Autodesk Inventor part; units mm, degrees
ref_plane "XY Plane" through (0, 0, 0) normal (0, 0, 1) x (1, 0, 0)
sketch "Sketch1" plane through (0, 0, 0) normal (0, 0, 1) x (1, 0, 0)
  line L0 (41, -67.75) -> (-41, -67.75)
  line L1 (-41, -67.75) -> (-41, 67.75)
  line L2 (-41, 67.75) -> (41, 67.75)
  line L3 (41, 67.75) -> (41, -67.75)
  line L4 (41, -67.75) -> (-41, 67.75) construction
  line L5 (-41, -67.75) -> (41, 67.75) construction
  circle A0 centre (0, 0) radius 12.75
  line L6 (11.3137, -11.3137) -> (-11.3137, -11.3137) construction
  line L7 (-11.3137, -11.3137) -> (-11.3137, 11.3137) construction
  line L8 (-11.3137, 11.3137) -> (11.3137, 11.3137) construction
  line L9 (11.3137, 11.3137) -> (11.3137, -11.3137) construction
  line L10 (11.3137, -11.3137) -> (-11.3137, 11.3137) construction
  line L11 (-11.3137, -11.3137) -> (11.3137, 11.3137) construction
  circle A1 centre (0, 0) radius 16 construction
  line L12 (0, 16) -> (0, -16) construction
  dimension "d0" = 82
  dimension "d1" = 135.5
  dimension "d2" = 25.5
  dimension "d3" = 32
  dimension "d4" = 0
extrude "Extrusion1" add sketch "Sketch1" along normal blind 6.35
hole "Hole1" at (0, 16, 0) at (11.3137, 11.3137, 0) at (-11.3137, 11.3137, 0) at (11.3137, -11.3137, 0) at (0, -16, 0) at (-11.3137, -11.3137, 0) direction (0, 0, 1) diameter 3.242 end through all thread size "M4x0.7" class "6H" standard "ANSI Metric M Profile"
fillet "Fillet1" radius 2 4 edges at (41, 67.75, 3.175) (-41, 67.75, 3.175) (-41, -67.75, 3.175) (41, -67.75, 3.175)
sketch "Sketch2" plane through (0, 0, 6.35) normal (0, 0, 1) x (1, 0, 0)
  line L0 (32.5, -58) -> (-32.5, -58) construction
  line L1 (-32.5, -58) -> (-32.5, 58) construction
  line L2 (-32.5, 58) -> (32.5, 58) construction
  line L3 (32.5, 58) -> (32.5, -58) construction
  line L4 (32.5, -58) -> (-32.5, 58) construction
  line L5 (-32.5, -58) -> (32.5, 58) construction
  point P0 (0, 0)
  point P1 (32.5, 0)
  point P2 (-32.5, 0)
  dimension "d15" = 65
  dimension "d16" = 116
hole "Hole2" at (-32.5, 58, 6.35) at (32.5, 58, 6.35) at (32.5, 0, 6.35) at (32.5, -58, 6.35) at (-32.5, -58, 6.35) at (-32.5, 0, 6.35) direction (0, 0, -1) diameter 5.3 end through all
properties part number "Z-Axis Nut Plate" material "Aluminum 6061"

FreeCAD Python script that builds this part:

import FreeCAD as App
import Part
import Sketcher
Q = App.Units.Quantity


def edges_at(feature, points):
    """Names of the edges that pass closest to the given points."""
    edges = feature.Shape.Edges
    near = lambda p: min(range(len(edges)), key=lambda i: edges[i].distToShape(Part.Vertex(*p))[0])
    return sorted({f"Edge{near(p) + 1}" for p in points})

doc = App.newDocument("Part")
body = doc.addObject("PartDesign::Body", "Body")

# Sketch on XY plane
sketch1 = doc.addObject("Sketcher::SketchObject", "Sketch")
body.addObject(sketch1)
sketch1.AttachmentSupport = (doc.XY_Plane, [""])
sketch1.MapMode = "FlatFace"
sketch1.addGeometry([
    Part.LineSegment(App.Vector(-41, -68, 0), App.Vector(41, -68, 0)),  # 0
    Part.LineSegment(App.Vector(41, -68, 0), App.Vector(41, 68, 0)),  # 1
    Part.LineSegment(App.Vector(41, 68, 0), App.Vector(-41, 68, 0)),  # 2
    Part.LineSegment(App.Vector(-41, 68, 0), App.Vector(-41, -68, 0)),  # 3
    Part.Circle(App.Vector(0, 0, 0), App.Vector(0, 0, 1), 13),  # 4
], False)
sketch1.addConstraint([
    Sketcher.Constraint("Coincident", 0, 2, 1, 1),
    Sketcher.Constraint("Coincident", 1, 2, 2, 1),
    Sketcher.Constraint("Coincident", 2, 2, 3, 1),
    Sketcher.Constraint("Coincident", 3, 2, 0, 1),
    Sketcher.Constraint("Horizontal", 0),
    Sketcher.Constraint("Vertical", 1),
    Sketcher.Constraint("Horizontal", 2),
    Sketcher.Constraint("Vertical", 3),
    Sketcher.Constraint("Coincident", 4, 3, -1, 1),
    Sketcher.Constraint("Symmetric", 0, 2, 2, 2, -1, 1),
    Sketcher.Constraint("Diameter", 4, Q("25.5 mm")),
    Sketcher.Constraint("DistanceX", 0, 1, 0, 2, Q("82 mm")),
    Sketcher.Constraint("DistanceY", 1, 1, 1, 2, Q("135.5 mm")),
])
pad1 = doc.addObject("PartDesign::Pad", "Pad")
body.addObject(pad1)
pad1.Profile = sketch1
pad1.Length = 6.35

# Sketch on XY plane
sketch2 = doc.addObject("Sketcher::SketchObject", "Sketch001")
body.addObject(sketch2)
sketch2.AttachmentSupport = (doc.XY_Plane, [""])
sketch2.MapMode = "FlatFace"
sketch2.addGeometry([
    Part.Circle(App.Vector(0, 16, 0), App.Vector(0, 0, 1), 1.6),  # 0
    Part.Circle(App.Vector(11.3, 11.3, 0), App.Vector(0, 0, 1), 1.6),  # 1
    Part.Circle(App.Vector(-11.3, 11.3, 0), App.Vector(0, 0, 1), 1.6),  # 2
    Part.Circle(App.Vector(11.3, -11.3, 0), App.Vector(0, 0, 1), 1.6),  # 3
    Part.Circle(App.Vector(0, -16, 0), App.Vector(0, 0, 1), 1.6),  # 4
    Part.Circle(App.Vector(-11.3, -11.3, 0), App.Vector(0, 0, 1), 1.6),  # 5
], False)
sketch2.addConstraint([
    Sketcher.Constraint("Equal", 0, 1),
    Sketcher.Constraint("Equal", 1, 2),
    Sketcher.Constraint("Equal", 2, 3),
    Sketcher.Constraint("Equal", 3, 4),
    Sketcher.Constraint("Equal", 4, 5),
    Sketcher.Constraint("Symmetric", 2, 3, 3, 3, -1, 1),
    Sketcher.Constraint("Symmetric", 0, 3, 4, 3, -1, 1),
    Sketcher.Constraint("Symmetric", 1, 3, 5, 3, -1, 1),
    Sketcher.Constraint("Symmetric", 1, 3, 2, 3, -2),
    Sketcher.Constraint("PointOnObject", 0, 3, -2),
    Sketcher.Constraint("Diameter", 0, Q("3.242 mm")),
    Sketcher.Constraint("DistanceY", -1, 1, 0, 3, Q("16 mm")),
    Sketcher.Constraint("DistanceX", -1, 1, 1, 3, Q("11.3137 mm")),
    Sketcher.Constraint("DistanceY", -1, 1, 1, 3, Q("11.3137 mm")),
])
doc.recompute()
hole = doc.addObject("PartDesign::Hole", "Hole")
body.addObject(hole)
hole.Profile = sketch2
hole.ThreadType = "None"
hole.Diameter = 3.242
hole.DepthType = "ThroughAll"
hole.Reversed = True
doc.recompute()

fillet = doc.addObject("PartDesign::Fillet", "Fillet")
body.addObject(fillet)
fillet.Base = (hole, edges_at(hole, [
    (41, 67.75, 3.175),
    (-41, 67.75, 3.175),
    (-41, -67.75, 3.175),
    (41, -67.75, 3.175),
]))
fillet.Radius = 2

# Sketch on XY plane
sketch3 = doc.addObject("Sketcher::SketchObject", "Sketch002")
body.addObject(sketch3)
sketch3.AttachmentSupport = (doc.XY_Plane, [""])
sketch3.MapMode = "FlatFace"
sketch3.AttachmentOffset = App.Placement(App.Vector(0, 0, 6.35), App.Rotation())
sketch3.addGeometry([
    Part.Circle(App.Vector(-32.5, 58, 0), App.Vector(0, 0, 1), 2.6),  # 0
    Part.Circle(App.Vector(32.5, 58, 0), App.Vector(0, 0, 1), 2.6),  # 1
    Part.Circle(App.Vector(32.5, 0, 0), App.Vector(0, 0, 1), 2.6),  # 2
    Part.Circle(App.Vector(32.5, -58, 0), App.Vector(0, 0, 1), 2.6),  # 3
    Part.Circle(App.Vector(-32.5, -58, 0), App.Vector(0, 0, 1), 2.6),  # 4
    Part.Circle(App.Vector(-32.5, 0, 0), App.Vector(0, 0, 1), 2.6),  # 5
], False)
sketch3.addConstraint([
    Sketcher.Constraint("Equal", 0, 1),
    Sketcher.Constraint("Equal", 1, 2),
    Sketcher.Constraint("Equal", 2, 3),
    Sketcher.Constraint("Equal", 3, 4),
    Sketcher.Constraint("Equal", 4, 5),
    Sketcher.Constraint("Symmetric", 0, 3, 3, 3, -1, 1),
    Sketcher.Constraint("Symmetric", 1, 3, 4, 3, -1, 1),
    Sketcher.Constraint("Symmetric", 2, 3, 5, 3, -1, 1),
    Sketcher.Constraint("Symmetric", 0, 3, 1, 3, -2),
    Sketcher.Constraint("PointOnObject", 2, 3, -1),
    Sketcher.Constraint("Vertical", 1, 3, 2, 3),
    Sketcher.Constraint("Diameter", 0, Q("5.3 mm")),
    Sketcher.Constraint("DistanceY", -1, 1, 0, 3, Q("58 mm")),
    Sketcher.Constraint("DistanceX", 0, 3, 1, 3, Q("65 mm")),
])
doc.recompute()
hole2 = doc.addObject("PartDesign::Hole", "Hole001")
body.addObject(hole2)
hole2.Profile = sketch3
hole2.ThreadType = "None"
hole2.Diameter = 5.3
hole2.DepthType = "ThroughAll"

doc.recompute()
